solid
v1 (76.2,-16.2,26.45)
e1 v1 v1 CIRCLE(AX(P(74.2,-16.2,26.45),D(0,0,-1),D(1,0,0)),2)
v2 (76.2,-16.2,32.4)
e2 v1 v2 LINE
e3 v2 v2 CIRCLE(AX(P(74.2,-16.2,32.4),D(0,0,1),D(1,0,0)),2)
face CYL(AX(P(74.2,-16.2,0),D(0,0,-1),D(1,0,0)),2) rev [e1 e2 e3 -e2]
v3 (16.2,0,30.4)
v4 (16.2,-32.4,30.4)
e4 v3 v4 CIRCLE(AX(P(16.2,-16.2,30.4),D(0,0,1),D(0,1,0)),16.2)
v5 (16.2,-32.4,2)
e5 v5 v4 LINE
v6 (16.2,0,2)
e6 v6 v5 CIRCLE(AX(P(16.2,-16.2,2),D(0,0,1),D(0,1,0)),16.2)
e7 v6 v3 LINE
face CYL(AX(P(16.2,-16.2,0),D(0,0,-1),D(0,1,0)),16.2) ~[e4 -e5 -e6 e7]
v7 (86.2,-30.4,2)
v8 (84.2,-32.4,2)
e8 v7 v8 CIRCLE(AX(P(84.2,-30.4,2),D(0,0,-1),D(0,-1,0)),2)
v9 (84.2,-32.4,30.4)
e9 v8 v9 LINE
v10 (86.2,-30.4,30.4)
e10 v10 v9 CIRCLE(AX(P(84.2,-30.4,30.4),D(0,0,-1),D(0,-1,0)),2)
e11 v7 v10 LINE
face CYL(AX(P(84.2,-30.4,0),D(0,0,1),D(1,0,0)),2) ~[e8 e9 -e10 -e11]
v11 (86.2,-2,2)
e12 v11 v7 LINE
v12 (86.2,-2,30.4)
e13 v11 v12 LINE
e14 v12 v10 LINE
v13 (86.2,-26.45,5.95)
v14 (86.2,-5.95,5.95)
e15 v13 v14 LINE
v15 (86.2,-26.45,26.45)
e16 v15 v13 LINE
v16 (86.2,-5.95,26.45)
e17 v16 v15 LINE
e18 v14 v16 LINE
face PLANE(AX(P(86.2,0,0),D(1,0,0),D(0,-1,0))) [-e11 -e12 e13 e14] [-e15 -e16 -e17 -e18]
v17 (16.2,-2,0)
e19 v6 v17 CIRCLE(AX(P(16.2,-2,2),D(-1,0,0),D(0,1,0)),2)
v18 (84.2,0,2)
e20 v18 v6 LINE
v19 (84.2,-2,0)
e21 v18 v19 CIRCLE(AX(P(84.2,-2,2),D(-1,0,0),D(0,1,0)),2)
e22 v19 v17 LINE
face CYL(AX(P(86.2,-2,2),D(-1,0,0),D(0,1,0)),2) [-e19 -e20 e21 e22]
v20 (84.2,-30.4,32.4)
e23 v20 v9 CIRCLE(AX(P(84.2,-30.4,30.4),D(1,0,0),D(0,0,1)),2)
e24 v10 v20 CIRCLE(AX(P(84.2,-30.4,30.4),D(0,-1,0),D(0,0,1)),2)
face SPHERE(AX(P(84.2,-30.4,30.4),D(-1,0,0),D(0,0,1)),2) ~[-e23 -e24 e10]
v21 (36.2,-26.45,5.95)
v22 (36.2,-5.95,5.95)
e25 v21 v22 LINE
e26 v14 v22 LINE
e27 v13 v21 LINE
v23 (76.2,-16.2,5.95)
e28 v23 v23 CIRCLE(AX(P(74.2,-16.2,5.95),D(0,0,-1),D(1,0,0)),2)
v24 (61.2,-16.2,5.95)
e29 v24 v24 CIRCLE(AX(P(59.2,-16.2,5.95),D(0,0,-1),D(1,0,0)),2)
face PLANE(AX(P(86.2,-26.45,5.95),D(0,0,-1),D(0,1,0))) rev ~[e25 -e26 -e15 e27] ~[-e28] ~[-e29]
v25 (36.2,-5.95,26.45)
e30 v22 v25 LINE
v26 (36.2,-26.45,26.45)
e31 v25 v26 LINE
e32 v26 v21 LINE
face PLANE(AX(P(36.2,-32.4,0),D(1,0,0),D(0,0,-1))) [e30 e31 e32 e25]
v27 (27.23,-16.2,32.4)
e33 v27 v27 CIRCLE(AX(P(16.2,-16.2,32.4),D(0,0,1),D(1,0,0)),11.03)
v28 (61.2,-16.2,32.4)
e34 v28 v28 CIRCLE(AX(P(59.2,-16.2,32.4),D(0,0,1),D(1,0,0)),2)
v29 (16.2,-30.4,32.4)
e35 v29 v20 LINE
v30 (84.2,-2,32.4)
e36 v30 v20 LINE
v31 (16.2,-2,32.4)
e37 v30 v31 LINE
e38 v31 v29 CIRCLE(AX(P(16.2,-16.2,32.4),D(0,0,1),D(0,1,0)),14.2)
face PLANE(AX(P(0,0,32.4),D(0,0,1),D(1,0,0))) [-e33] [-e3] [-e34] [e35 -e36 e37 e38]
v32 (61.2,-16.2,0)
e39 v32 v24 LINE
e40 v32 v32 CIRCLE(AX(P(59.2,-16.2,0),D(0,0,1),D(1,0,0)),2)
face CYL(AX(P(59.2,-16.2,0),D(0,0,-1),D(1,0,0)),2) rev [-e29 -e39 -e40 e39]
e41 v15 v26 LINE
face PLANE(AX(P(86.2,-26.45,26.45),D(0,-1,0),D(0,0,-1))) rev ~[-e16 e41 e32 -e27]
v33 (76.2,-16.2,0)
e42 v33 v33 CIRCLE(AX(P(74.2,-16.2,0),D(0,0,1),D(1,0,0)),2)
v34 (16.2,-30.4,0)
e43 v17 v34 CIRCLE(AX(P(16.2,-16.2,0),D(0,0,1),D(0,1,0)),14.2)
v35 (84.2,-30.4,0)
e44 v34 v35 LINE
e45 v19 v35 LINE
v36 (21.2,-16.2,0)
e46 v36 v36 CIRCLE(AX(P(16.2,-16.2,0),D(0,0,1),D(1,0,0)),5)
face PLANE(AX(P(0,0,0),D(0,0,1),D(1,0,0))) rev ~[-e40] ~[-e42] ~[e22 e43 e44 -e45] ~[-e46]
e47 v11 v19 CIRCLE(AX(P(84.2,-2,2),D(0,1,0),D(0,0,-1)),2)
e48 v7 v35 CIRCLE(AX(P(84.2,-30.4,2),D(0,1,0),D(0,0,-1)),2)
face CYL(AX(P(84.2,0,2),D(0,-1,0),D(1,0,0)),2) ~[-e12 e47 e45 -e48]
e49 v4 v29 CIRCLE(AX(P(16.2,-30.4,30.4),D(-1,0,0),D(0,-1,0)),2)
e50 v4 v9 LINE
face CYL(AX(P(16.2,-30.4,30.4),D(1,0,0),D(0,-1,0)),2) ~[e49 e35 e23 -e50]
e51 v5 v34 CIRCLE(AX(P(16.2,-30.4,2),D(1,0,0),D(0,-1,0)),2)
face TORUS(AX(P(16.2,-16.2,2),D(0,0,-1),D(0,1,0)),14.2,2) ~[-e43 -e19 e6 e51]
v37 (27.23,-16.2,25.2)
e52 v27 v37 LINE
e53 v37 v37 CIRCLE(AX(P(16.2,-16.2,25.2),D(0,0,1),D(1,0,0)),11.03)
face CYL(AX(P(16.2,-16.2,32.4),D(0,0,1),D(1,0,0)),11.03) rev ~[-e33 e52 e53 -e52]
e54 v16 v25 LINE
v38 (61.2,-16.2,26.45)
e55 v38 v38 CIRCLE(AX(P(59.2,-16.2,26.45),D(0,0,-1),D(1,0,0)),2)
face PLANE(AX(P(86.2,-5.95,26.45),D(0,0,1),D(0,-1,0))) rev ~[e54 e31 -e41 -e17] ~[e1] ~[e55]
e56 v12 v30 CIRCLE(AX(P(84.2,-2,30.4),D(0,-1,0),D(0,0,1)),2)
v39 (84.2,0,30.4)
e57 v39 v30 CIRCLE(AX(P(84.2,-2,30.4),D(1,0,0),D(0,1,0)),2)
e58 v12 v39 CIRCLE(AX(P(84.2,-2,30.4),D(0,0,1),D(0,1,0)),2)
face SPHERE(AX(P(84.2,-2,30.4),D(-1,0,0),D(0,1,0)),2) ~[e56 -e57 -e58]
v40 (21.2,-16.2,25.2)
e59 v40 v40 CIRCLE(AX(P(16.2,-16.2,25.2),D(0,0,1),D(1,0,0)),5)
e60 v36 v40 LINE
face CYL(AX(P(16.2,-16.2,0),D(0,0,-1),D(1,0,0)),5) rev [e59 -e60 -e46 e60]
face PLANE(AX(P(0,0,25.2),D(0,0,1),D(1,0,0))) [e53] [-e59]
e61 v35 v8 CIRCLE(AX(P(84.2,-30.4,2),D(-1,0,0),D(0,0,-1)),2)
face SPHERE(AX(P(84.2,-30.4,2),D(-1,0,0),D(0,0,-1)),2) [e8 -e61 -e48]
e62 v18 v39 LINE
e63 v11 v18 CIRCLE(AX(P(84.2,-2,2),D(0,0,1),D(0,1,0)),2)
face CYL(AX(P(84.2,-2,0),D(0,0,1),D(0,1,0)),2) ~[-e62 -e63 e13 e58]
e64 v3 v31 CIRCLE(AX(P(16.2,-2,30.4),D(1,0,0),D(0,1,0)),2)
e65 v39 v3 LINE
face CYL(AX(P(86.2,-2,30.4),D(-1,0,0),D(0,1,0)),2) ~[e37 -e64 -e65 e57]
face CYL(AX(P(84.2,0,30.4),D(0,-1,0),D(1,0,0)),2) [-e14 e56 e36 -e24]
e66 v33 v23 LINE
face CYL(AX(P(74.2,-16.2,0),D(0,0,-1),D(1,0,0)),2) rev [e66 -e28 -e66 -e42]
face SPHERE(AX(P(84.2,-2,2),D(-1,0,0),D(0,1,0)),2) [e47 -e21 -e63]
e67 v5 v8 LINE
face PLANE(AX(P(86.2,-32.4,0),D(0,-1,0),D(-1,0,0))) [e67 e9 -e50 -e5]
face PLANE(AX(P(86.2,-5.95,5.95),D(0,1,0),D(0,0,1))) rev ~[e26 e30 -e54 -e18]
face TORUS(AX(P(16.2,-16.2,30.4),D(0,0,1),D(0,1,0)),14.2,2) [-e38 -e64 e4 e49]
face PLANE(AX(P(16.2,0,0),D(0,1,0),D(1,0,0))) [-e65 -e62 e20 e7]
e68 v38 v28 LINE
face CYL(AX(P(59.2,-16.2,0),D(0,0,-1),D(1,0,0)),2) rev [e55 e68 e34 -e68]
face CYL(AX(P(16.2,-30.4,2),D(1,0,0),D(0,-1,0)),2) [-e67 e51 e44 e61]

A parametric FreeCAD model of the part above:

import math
import FreeCAD as App
import Part
import Sketcher

V = App.Vector


def edges_at(feature, points):
    """Names of the edges that pass closest to the given points."""
    edges = feature.Shape.Edges
    near = lambda p: min(range(len(edges)), key=lambda i: edges[i].distToShape(Part.Vertex(*p))[0])
    return sorted({f"Edge{near(p) + 1}" for p in points})

doc = App.newDocument("Part")
body = doc.addObject("PartDesign::Body", "Body")

# Sketch on XY plane
sketch1 = body.newObject("Sketcher::SketchObject", "Sketch")
sketch1.AttachmentSupport = (doc.getObject("XY_Plane"), [""])
sketch1.MapMode = "FlatFace"
sketch1.addGeometry([
    Part.LineSegment(V(86.2, 0, 0), V(16.2, 0, 0)),  # 0
    Part.ArcOfCircle(Part.Circle(V(16.2, -16.2, 0), V(0, 0, 1), 16.2), math.radians(90), math.radians(270)),  # 1
    Part.LineSegment(V(16.2, -32.4, 0), V(86.2, -32.4, 0)),  # 2
    Part.LineSegment(V(86.2, -32.4, 0), V(86.2, 0, 0)),  # 3
    Part.Circle(V(16.2, -16.2, 0), V(0, 0, 1), 5),  # 4
    Part.Circle(V(59.2, -16.2, 0), V(0, 0, 1), 2),  # 5
    Part.Circle(V(74.2, -16.2, 0), V(0, 0, 1), 2),  # 6
], False)
sketch1.addConstraint([
    Sketcher.Constraint("Tangent", 0, 2, 1, 1),
    Sketcher.Constraint("Tangent", 1, 2, 2, 1),
    Sketcher.Constraint("Coincident", 2, 2, 3, 1),
    Sketcher.Constraint("Coincident", 3, 2, 0, 1),
    Sketcher.Constraint("Horizontal", 0),
    Sketcher.Constraint("Horizontal", 2),
    Sketcher.Constraint("Vertical", 3),
    Sketcher.Constraint("Coincident", 4, 3, 1, 3),
    Sketcher.Constraint("Equal", 5, 6),
    Sketcher.Constraint("PointOnObject", 0, 2, -1),
    Sketcher.Constraint("Horizontal", 4, 3, 5, 3),
    Sketcher.Constraint("Horizontal", 5, 3, 6, 3),
    Sketcher.Constraint("Diameter", 4, 10.0),
    Sketcher.Constraint("Diameter", 5, 4.0),
    Sketcher.Constraint("Radius", 1, 16.2),
    Sketcher.Constraint("DistanceX", 1, 3, 5, 3, 43.0),
    Sketcher.Constraint("DistanceX", 5, 3, 6, 3, 15.0),
    Sketcher.Constraint("DistanceX", -1, 1, 1, 3, 16.2),
    Sketcher.Constraint("DistanceX", 0, 2, 0, 1, 70.0),
])
pad1 = body.newObject("PartDesign::Pad", "Pad")
pad1.Profile = sketch1
pad1.Length = 32.4

# Sketch on YZ plane
sketch2 = body.newObject("Sketcher::SketchObject", "Sketch001")
sketch2.AttachmentSupport = (doc.getObject("YZ_Plane"), [""])
sketch2.MapMode = "FlatFace"
sketch2.AttachmentOffset = App.Placement(V(0, 0, 86.2), App.Rotation())
sketch2.addGeometry([
    Part.LineSegment(V(-6, 26, 0), V(-26, 26, 0)),
    Part.LineSegment(V(-26, 26, 0), V(-26, 6, 0)),
    Part.LineSegment(V(-26, 6, 0), V(-6, 6, 0)),
    Part.LineSegment(V(-6, 6, 0), V(-6, 26, 0)),
], False)
sketch2.addConstraint([
    Sketcher.Constraint("Coincident", 0, 2, 1, 1),
    Sketcher.Constraint("Coincident", 1, 2, 2, 1),
    Sketcher.Constraint("Coincident", 2, 2, 3, 1),
    Sketcher.Constraint("Coincident", 3, 2, 0, 1),
    Sketcher.Constraint("Horizontal", 0),
    Sketcher.Constraint("Vertical", 1),
    Sketcher.Constraint("Horizontal", 2),
    Sketcher.Constraint("Vertical", 3),
    Sketcher.Constraint("Equal", 2, 1),
    Sketcher.Constraint("DistanceX", 0, 2, 0, 1, 20.5),
    Sketcher.Constraint("DistanceX", 0, 2, -1, 1, 26.45),
    Sketcher.Constraint("DistanceY", -1, 1, 0, 2, 26.45),
])
pocket1 = body.newObject("PartDesign::Pocket", "Pocket")
pocket1.Profile = sketch2
pocket1.Length = 50

# Sketch on XY plane
sketch3 = body.newObject("Sketcher::SketchObject", "Sketch002")
sketch3.AttachmentSupport = (doc.getObject("XY_Plane"), [""])
sketch3.MapMode = "FlatFace"
sketch3.AttachmentOffset = App.Placement(V(0, 0, 32.4), App.Rotation())
sketch3.addGeometry([
    Part.Circle(V(16, -16, 0), V(0, 0, 1), 11),
    Part.Circle(V(16, -16, 0), V(0, 0, 1), 5),
], False)
sketch3.addConstraint([
    Sketcher.Constraint("Coincident", 1, 3, 0, 3),
    Sketcher.Constraint("Diameter", 0, 22.06),
    Sketcher.Constraint("Diameter", 1, 10.0),
    Sketcher.Constraint("DistanceX", -1, 1, 0, 3, 16.2),
    Sketcher.Constraint("DistanceY", 0, 3, -1, 1, 16.2),
])
pocket2 = body.newObject("PartDesign::Pocket", "Pocket001")
pocket2.Profile = sketch3
pocket2.Length = 7.2
doc.recompute()

fillet = body.newObject("PartDesign::Fillet", "Fillet")
fillet.Base = (pocket2, edges_at(pocket2, [
    (0, -16.2, 32.4),
    (51.2, -32.4, 32.4),
    (51.2, 0, 32.4),
    (0, -16.2, 0),
    (51.2, -32.4, 0),
    (51.2, 0, 0),
    (86.2, 0, 16.2),
    (86.2, -16.2, 32.4),
    (86.2, -16.2, 0),
    (86.2, -32.4, 16.2),
]))
fillet.Radius = 2

doc.recompute()
